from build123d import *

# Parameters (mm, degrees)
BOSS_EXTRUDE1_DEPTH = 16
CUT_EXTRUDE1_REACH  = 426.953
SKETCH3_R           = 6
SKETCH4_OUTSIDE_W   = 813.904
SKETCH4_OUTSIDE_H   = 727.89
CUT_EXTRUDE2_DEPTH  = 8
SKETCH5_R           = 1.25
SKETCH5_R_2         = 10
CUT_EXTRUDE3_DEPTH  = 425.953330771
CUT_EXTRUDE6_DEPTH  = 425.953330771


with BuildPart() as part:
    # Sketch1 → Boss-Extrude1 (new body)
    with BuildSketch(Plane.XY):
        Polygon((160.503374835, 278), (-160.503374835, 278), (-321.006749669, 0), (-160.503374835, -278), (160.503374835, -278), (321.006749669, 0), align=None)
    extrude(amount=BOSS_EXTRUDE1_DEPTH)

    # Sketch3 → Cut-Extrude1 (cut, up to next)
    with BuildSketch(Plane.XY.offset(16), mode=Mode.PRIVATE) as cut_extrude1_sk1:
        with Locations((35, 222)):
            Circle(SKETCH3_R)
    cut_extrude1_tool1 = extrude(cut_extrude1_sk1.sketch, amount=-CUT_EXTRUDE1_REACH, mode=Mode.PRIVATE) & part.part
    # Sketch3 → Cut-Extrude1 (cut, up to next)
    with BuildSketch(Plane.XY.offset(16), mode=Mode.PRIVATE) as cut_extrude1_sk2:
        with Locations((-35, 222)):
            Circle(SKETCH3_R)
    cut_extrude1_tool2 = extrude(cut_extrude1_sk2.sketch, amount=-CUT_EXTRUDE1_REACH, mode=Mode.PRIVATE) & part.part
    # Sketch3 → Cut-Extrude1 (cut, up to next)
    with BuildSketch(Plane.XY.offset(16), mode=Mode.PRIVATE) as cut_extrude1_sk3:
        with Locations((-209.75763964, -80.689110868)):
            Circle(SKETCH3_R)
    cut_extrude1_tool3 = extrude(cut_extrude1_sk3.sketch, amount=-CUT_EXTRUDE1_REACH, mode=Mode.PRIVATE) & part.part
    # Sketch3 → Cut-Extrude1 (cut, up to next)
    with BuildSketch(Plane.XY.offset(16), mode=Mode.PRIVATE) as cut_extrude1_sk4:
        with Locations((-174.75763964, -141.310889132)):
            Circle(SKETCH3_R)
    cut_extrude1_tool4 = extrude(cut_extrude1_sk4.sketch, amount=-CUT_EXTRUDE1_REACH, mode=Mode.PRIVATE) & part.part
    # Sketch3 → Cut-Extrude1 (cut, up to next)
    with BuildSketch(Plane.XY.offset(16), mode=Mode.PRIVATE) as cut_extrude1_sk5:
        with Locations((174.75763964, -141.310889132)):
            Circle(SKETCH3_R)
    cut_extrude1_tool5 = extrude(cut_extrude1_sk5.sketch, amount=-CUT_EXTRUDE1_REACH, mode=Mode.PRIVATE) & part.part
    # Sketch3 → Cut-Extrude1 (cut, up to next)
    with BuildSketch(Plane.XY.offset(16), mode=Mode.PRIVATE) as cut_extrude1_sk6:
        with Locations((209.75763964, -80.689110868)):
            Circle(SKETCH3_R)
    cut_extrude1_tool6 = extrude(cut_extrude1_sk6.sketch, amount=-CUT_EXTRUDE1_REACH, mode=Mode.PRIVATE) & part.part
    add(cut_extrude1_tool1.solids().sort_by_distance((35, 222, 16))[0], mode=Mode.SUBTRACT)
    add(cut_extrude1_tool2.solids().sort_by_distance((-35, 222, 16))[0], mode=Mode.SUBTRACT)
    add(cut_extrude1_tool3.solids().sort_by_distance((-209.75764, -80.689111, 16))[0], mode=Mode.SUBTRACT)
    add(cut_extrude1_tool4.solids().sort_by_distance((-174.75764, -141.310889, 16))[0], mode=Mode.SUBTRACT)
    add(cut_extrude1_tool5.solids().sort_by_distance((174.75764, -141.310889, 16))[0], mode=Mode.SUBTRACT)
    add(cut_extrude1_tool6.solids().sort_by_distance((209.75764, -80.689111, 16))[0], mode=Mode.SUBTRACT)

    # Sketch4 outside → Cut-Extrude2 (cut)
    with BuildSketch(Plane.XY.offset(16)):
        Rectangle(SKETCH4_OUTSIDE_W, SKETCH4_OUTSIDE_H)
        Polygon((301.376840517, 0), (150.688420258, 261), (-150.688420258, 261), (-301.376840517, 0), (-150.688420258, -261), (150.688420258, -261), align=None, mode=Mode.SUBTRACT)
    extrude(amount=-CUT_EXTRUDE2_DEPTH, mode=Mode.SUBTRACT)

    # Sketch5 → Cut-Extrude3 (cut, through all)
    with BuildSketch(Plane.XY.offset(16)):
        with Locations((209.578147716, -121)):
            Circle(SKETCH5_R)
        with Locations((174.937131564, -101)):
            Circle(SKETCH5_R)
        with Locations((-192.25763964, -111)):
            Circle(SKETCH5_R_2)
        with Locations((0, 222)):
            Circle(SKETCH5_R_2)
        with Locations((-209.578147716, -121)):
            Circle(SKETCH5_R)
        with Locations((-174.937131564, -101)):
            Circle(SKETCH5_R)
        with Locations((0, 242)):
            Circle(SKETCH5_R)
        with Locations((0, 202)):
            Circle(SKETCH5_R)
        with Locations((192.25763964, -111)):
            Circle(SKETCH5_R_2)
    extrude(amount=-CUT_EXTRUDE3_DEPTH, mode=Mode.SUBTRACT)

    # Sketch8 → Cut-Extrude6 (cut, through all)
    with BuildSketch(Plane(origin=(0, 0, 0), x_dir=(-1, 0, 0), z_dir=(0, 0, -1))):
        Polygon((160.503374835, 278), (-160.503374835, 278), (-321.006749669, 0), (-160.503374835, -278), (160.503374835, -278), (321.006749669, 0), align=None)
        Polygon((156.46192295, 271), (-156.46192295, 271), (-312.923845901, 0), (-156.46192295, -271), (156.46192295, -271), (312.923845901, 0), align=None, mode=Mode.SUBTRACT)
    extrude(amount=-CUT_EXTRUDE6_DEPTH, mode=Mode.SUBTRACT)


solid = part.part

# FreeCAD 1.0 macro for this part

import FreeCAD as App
import Part
import Sketcher

V = App.Vector
Q = App.Units.Quantity


def add_polygon(sketch, points):
    """Adds a closed chain of lines whose ends are joined by coincident constraints."""
    first, n = sketch.GeometryCount, len(points)
    for a, b in zip(points, points[1:] + points[:1]):
        sketch.addGeometry(Part.LineSegment(App.Vector(*a, 0), App.Vector(*b, 0)), False)
    for i in range(n):
        sketch.addConstraint(Sketcher.Constraint("Coincident", first + i, 2, first + (i + 1) % n, 1))

doc = App.newDocument("Part")
body = doc.addObject("PartDesign::Body", "Body")

sketch1 = body.newObject("Sketcher::SketchObject", "Sketch")
sketch1.AttachmentSupport = (doc.getObject("XY_Plane"), [""])
sketch1.MapMode = "FlatFace"
add_polygon(sketch1, [(161, 278), (-161, 278), (-321, 0), (-161, -278), (161, -278), (321, 0)])
sketch1.addConstraint([
    Sketcher.Constraint("Horizontal", 0),
    Sketcher.Constraint("Horizontal", 3),
    Sketcher.Constraint("Symmetric", 0, 2, 3, 2, -1, 1),
    Sketcher.Constraint("Symmetric", 1, 2, 4, 2, -1, 1),
    Sketcher.Constraint("PointOnObject", 1, 2, -1),
    Sketcher.Constraint("Parallel", 2, 5),
    Sketcher.Constraint("Vertical", 0, 2, 2, 2),
    Sketcher.Constraint("Angle", 1, Q("-120 deg")),
    Sketcher.Constraint("DistanceY", -1, 1, 0, 2, 278.0),
    Sketcher.Constraint("DistanceX", 0, 2, 0, 1, 321.00675),
])
pad1 = body.newObject("PartDesign::Pad", "Pad")
pad1.Profile = sketch1
pad1.Length = 16

sketch2 = body.newObject("Sketcher::SketchObject", "Sketch001")
sketch2.AttachmentSupport = (doc.getObject("XY_Plane"), [""])
sketch2.MapMode = "FlatFace"
sketch2.AttachmentOffset = App.Placement(V(0, 0, 16), App.Rotation())
sketch2.addGeometry(Part.Circle(V(35, 222, 0), V(0, 0, 1), 6), False)
sketch2.addConstraint([
    Sketcher.Constraint("Diameter", 0, 12.0),
    Sketcher.Constraint("DistanceX", -1, 1, 0, 3, 35.0),
    Sketcher.Constraint("DistanceY", -1, 1, 0, 3, 222.0),
])
pocket1 = body.newObject("PartDesign::Pocket", "Pocket")
pocket1.Profile = sketch2
pocket1.Type = "UpToFirst"

sketch3 = body.newObject("Sketcher::SketchObject", "Sketch002")
sketch3.AttachmentSupport = (doc.getObject("XY_Plane"), [""])
sketch3.MapMode = "FlatFace"
sketch3.AttachmentOffset = App.Placement(V(0, 0, 16), App.Rotation())
sketch3.addGeometry(Part.Circle(V(-35, 222, 0), V(0, 0, 1), 6), False)
sketch3.addConstraint([
    Sketcher.Constraint("Diameter", 0, 12.0),
    Sketcher.Constraint("DistanceX", 0, 3, -1, 1, 35.0),
    Sketcher.Constraint("DistanceY", -1, 1, 0, 3, 222.0),
])
pocket2 = body.newObject("PartDesign::Pocket", "Pocket001")
pocket2.Profile = sketch3
pocket2.Type = "UpToFirst"

sketch4 = body.newObject("Sketcher::SketchObject", "Sketch003")
sketch4.AttachmentSupport = (doc.getObject("XY_Plane"), [""])
sketch4.MapMode = "FlatFace"
sketch4.AttachmentOffset = App.Placement(V(0, 0, 16), App.Rotation())
sketch4.addGeometry(Part.Circle(V(-210, -81, 0), V(0, 0, 1), 6), False)
sketch4.addConstraint([
    Sketcher.Constraint("Diameter", 0, 12.0),
    Sketcher.Constraint("DistanceX", 0, 3, -1, 1, 209.75764),
    Sketcher.Constraint("DistanceY", 0, 3, -1, 1, 80.689111),
])
pocket3 = body.newObject("PartDesign::Pocket", "Pocket002")
pocket3.Profile = sketch4
pocket3.Type = "UpToFirst"

sketch5 = body.newObject("Sketcher::SketchObject", "Sketch004")
sketch5.AttachmentSupport = (doc.getObject("XY_Plane"), [""])
sketch5.MapMode = "FlatFace"
sketch5.AttachmentOffset = App.Placement(V(0, 0, 16), App.Rotation())
sketch5.addGeometry(Part.Circle(V(-175, -141, 0), V(0, 0, 1), 6), False)
sketch5.addConstraint([
    Sketcher.Constraint("Diameter", 0, 12.0),
    Sketcher.Constraint("DistanceX", 0, 3, -1, 1, 174.75764),
    Sketcher.Constraint("DistanceY", 0, 3, -1, 1, 141.310889),
])
pocket4 = body.newObject("PartDesign::Pocket", "Pocket003")
pocket4.Profile = sketch5
pocket4.Type = "UpToFirst"

sketch6 = body.newObject("Sketcher::SketchObject", "Sketch005")
sketch6.AttachmentSupport = (doc.getObject("XY_Plane"), [""])
sketch6.MapMode = "FlatFace"
sketch6.AttachmentOffset = App.Placement(V(0, 0, 16), App.Rotation())
sketch6.addGeometry(Part.Circle(V(175, -141, 0), V(0, 0, 1), 6), False)
sketch6.addConstraint([
    Sketcher.Constraint("Diameter", 0, 12.0),
    Sketcher.Constraint("DistanceX", -1, 1, 0, 3, 174.75764),
    Sketcher.Constraint("DistanceY", 0, 3, -1, 1, 141.310889),
])
pocket5 = body.newObject("PartDesign::Pocket", "Pocket004")
pocket5.Profile = sketch6
pocket5.Type = "UpToFirst"

sketch7 = body.newObject("Sketcher::SketchObject", "Sketch006")
sketch7.AttachmentSupport = (doc.getObject("XY_Plane"), [""])
sketch7.MapMode = "FlatFace"
sketch7.AttachmentOffset = App.Placement(V(0, 0, 16), App.Rotation())
sketch7.addGeometry(Part.Circle(V(210, -81, 0), V(0, 0, 1), 6), False)
sketch7.addConstraint([
    Sketcher.Constraint("Diameter", 0, 12.0),
    Sketcher.Constraint("DistanceX", -1, 1, 0, 3, 209.75764),
    Sketcher.Constraint("DistanceY", 0, 3, -1, 1, 80.689111),
])
pocket6 = body.newObject("PartDesign::Pocket", "Pocket005")
pocket6.Profile = sketch7
pocket6.Type = "UpToFirst"

sketch8 = body.newObject("Sketcher::SketchObject", "Sketch007")
sketch8.AttachmentSupport = (doc.getObject("XY_Plane"), [""])
sketch8.MapMode = "FlatFace"
sketch8.AttachmentOffset = App.Placement(V(0, 0, 16), App.Rotation())
add_polygon(sketch8, [(-407, 364), (-407, -364), (407, -364), (407, 364)])
add_polygon(sketch8, [(151, 261), (301, 0), (151, -261), (-151, -261), (-301, 0), (-151, 261)])
sketch8.addConstraint([
    Sketcher.Constraint("Vertical", 0),
    Sketcher.Constraint("Horizontal", 1),
    Sketcher.Constraint("Vertical", 2),
    Sketcher.Constraint("Horizontal", 3),
    Sketcher.Constraint("Horizontal", 6),
    Sketcher.Constraint("Horizontal", 9),
    Sketcher.Constraint("Symmetric", 0, 2, 2, 2, -1, 1),
    Sketcher.Constraint("Symmetric", 4, 2, 7, 2, -1, 1),
    Sketcher.Constraint("Symmetric", 5, 2, 8, 2, -1, 1),
    Sketcher.Constraint("PointOnObject", 4, 2, -1),
    Sketcher.Constraint("Parallel", 4, 7),
    Sketcher.Constraint("Vertical", 6, 2, 8, 2),
    Sketcher.Constraint("Angle", 4, Q("-60 deg")),
    Sketcher.Constraint("DistanceY", 5, 2, -1, 1, 261.0),
    Sketcher.Constraint("DistanceY", 0, 2, 0, 1, 727.89),
    Sketcher.Constraint("DistanceX", 1, 1, 1, 2, 813.904),
    Sketcher.Constraint("DistanceX", 6, 2, 6, 1, 301.376841),
])
pocket7 = body.newObject("PartDesign::Pocket", "Pocket006")
pocket7.Profile = sketch8
pocket7.Length = 8

sketch9 = body.newObject("Sketcher::SketchObject", "Sketch008")
sketch9.AttachmentSupport = (doc.getObject("XY_Plane"), [""])
sketch9.MapMode = "FlatFace"
sketch9.AttachmentOffset = App.Placement(V(0, 0, 16), App.Rotation())
sketch9.addGeometry([
    Part.Circle(V(209.6, -121, 0), V(0, 0, 1), 1.2),
    Part.Circle(V(174.9, -101, 0), V(0, 0, 1), 1.2),
    Part.Circle(V(-192.3, -111, 0), V(0, 0, 1), 10),
    Part.Circle(V(0, 222, 0), V(0, 0, 1), 10),
    Part.Circle(V(-209.6, -121, 0), V(0, 0, 1), 1.2),
    Part.Circle(V(-174.9, -101, 0), V(0, 0, 1), 1.2),
    Part.Circle(V(0, 242, 0), V(0, 0, 1), 1.2),
    Part.Circle(V(0, 202, 0), V(0, 0, 1), 1.2),
    Part.Circle(V(192.3, -111, 0), V(0, 0, 1), 10),
], False)
sketch9.addConstraint([
    Sketcher.Constraint("Equal", 0, 1),
    Sketcher.Constraint("Equal", 2, 3),
    Sketcher.Constraint("Equal", 1, 4),
    Sketcher.Constraint("Equal", 4, 5),
    Sketcher.Constraint("Equal", 5, 6),
    Sketcher.Constraint("Equal", 6, 7),
    Sketcher.Constraint("Equal", 3, 8),
    Sketcher.Constraint("Symmetric", 0, 3, 4, 3, -2),
    Sketcher.Constraint("Symmetric", 1, 3, 5, 3, -2),
    Sketcher.Constraint("Symmetric", 2, 3, 8, 3, -2),
    Sketcher.Constraint("PointOnObject", 3, 3, -2),
    Sketcher.Constraint("PointOnObject", 6, 3, -2),
    Sketcher.Constraint("PointOnObject", 7, 3, -2),
    Sketcher.Constraint("Diameter", 2, 20.0),
    Sketcher.Constraint("Diameter", 0, 2.5),
    Sketcher.Constraint("DistanceY", 0, 3, -1, 1, 121.0),
    Sketcher.Constraint("DistanceY", 1, 3, -1, 1, 101.0),
    Sketcher.Constraint("DistanceY", 2, 3, -1, 1, 111.0),
    Sketcher.Constraint("DistanceY", -1, 1, 3, 3, 222.0),
    Sketcher.Constraint("DistanceY", -1, 1, 6, 3, 242.0),
    Sketcher.Constraint("DistanceY", -1, 1, 7, 3, 202.0),
    Sketcher.Constraint("DistanceX", -1, 1, 1, 3, 174.937132),
    Sketcher.Constraint("DistanceX", 2, 3, -1, 1, 192.25764),
    Sketcher.Constraint("DistanceX", 4, 3, 2, 3, 17.320508),
])
pocket8 = body.newObject("PartDesign::Pocket", "Pocket007")
pocket8.Profile = sketch9
pocket8.Type = "ThroughAll"

sketch10 = body.newObject("Sketcher::SketchObject", "Sketch009")
sketch10.AttachmentSupport = (doc.getObject("XY_Plane"), [""])
sketch10.MapMode = "FlatFace"
add_polygon(sketch10, [(-161, 278), (161, 278), (321, 0), (161, -278), (-161, -278), (-321, 0)])
add_polygon(sketch10, [(156, 271), (-156, 271), (-313, 0), (-156, -271), (156, -271), (313, 0)])
sketch10.addConstraint([
    Sketcher.Constraint("Horizontal", 0),
    Sketcher.Constraint("Horizontal", 3),
    Sketcher.Constraint("Horizontal", 6),
    Sketcher.Constraint("Horizontal", 9),
    Sketcher.Constraint("Symmetric", 0, 2, 3, 2, -1, 1),
    Sketcher.Constraint("Symmetric", 1, 2, 4, 2, -1, 1),
    Sketcher.Constraint("Symmetric", 6, 2, 9, 2, -1, 1),
    Sketcher.Constraint("Symmetric", 7, 2, 10, 2, -1, 1),
    Sketcher.Constraint("PointOnObject", 1, 2, -1),
    Sketcher.Constraint("PointOnObject", 7, 2, -1),
    Sketcher.Constraint("Parallel", 2, 5),
    Sketcher.Constraint("Parallel", 5, 7),
    Sketcher.Constraint("Parallel", 4, 8),
    Sketcher.Constraint("Parallel", 8, 11),
    Sketcher.Constraint("Vertical", 0, 2, 2, 2),
    Sketcher.Constraint("Angle", 1, Q("-60 deg")),
    Sketcher.Constraint("DistanceY", -1, 1, 0, 2, 278.0),
    Sketcher.Constraint("DistanceY", -1, 1, 6, 2, 271.0),
    Sketcher.Constraint("DistanceX", 0, 1, 0, 2, 321.00675),
    Sketcher.Constraint("DistanceX", 6, 2, 6, 1, 312.923846),
])
pocket9 = body.newObject("PartDesign::Pocket", "Pocket008")
pocket9.Profile = sketch10
pocket9.Type = "ThroughAll"
pocket9.Reversed = True

doc.recompute()
